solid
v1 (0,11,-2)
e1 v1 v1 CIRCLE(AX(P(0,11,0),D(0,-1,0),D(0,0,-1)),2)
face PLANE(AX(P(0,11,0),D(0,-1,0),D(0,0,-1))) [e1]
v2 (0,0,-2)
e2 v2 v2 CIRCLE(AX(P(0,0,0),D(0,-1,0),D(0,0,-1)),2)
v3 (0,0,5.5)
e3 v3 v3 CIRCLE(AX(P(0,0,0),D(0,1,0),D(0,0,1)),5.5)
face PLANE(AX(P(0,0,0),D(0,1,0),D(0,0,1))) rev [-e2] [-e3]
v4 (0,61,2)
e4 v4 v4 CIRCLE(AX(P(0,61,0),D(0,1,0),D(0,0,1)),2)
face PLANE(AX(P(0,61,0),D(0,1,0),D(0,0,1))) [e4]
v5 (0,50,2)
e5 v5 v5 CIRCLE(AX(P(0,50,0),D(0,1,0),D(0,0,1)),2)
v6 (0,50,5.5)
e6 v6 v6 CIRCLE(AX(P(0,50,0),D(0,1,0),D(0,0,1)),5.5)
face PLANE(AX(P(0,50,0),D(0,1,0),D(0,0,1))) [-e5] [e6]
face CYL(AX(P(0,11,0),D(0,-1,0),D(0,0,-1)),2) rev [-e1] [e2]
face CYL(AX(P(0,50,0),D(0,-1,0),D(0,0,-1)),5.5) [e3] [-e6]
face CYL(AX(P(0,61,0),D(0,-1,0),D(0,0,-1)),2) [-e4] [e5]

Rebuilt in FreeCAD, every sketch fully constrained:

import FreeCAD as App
import Part
import Sketcher
from FreeCAD import Vector
Q = App.Units.Quantity

doc = App.newDocument("Part")
params = doc.addObject("Spreadsheet::Sheet", "Params")
for row, (alias, value) in enumerate([
    ("sketch1_diameter", "11 mm"),
    ("pad1_length", "50 mm"),
    ("sketch2_diameter", "4 mm"),
    ("pad2_length", "11 mm"),
    ("sketch3_diameter", "4 mm"),
    ("pocket1_length", "11 mm"),
], start=1):
    params.set(f"A{row}", alias)
    params.set(f"B{row}", "=" + value)
    params.setAlias(f"B{row}", alias)

body = doc.addObject("PartDesign::Body", "Body")

# Sketch on XZ plane
sketch1 = body.newObject("Sketcher::SketchObject", "Sketch")
sketch1.AttachmentSupport = (doc.getObject("XZ_Plane"), [""])
sketch1.MapMode = "FlatFace"
sketch1.addGeometry(Part.Circle(Vector(0, 0, 0), Vector(0, 0, 1), 6), False)
sketch1.addConstraint([
    Sketcher.Constraint("Coincident", 0, 3, -1, 1),
    Sketcher.Constraint("Diameter", 0, Q("11 mm")),
])
sketch1.setExpression("Constraints[1]", "Params.sketch1_diameter")
pad1 = body.newObject("PartDesign::Pad", "Pad")
pad1.Profile = sketch1
pad1.setExpression("Length", "Params.pad1_length")
pad1.Reversed = True

# Sketch on XZ plane
sketch2 = body.newObject("Sketcher::SketchObject", "Sketch001")
sketch2.AttachmentSupport = (doc.getObject("XZ_Plane"), [""])
sketch2.MapMode = "FlatFace"
sketch2.AttachmentOffset = App.Placement(Vector(0, 0, -50), App.Rotation())
sketch2.addGeometry(Part.Circle(Vector(0, 0, 0), Vector(0, 0, 1), 2), False)
sketch2.addConstraint([
    Sketcher.Constraint("Coincident", 0, 3, -1, 1),
    Sketcher.Constraint("Diameter", 0, Q("4 mm")),
])
sketch2.setExpression("Constraints[1]", "Params.sketch2_diameter")
pad2 = body.newObject("PartDesign::Pad", "Pad001")
pad2.Profile = sketch2
pad2.setExpression("Length", "Params.pad2_length")
pad2.Reversed = True

# Sketch on XZ plane
sketch3 = body.newObject("Sketcher::SketchObject", "Sketch002")
sketch3.AttachmentSupport = (doc.getObject("XZ_Plane"), [""])
sketch3.MapMode = "FlatFace"
sketch3.addGeometry(Part.Circle(Vector(0, 0, 0), Vector(0, 0, 1), 2), False)
sketch3.addConstraint([
    Sketcher.Constraint("Coincident", 0, 3, -1, 1),
    Sketcher.Constraint("Diameter", 0, Q("4 mm")),
])
sketch3.setExpression("Constraints[1]", "Params.sketch3_diameter")
pocket1 = body.newObject("PartDesign::Pocket", "Pocket")
pocket1.Profile = sketch3
pocket1.setExpression("Length", "Params.pocket1_length")

doc.recompute()
